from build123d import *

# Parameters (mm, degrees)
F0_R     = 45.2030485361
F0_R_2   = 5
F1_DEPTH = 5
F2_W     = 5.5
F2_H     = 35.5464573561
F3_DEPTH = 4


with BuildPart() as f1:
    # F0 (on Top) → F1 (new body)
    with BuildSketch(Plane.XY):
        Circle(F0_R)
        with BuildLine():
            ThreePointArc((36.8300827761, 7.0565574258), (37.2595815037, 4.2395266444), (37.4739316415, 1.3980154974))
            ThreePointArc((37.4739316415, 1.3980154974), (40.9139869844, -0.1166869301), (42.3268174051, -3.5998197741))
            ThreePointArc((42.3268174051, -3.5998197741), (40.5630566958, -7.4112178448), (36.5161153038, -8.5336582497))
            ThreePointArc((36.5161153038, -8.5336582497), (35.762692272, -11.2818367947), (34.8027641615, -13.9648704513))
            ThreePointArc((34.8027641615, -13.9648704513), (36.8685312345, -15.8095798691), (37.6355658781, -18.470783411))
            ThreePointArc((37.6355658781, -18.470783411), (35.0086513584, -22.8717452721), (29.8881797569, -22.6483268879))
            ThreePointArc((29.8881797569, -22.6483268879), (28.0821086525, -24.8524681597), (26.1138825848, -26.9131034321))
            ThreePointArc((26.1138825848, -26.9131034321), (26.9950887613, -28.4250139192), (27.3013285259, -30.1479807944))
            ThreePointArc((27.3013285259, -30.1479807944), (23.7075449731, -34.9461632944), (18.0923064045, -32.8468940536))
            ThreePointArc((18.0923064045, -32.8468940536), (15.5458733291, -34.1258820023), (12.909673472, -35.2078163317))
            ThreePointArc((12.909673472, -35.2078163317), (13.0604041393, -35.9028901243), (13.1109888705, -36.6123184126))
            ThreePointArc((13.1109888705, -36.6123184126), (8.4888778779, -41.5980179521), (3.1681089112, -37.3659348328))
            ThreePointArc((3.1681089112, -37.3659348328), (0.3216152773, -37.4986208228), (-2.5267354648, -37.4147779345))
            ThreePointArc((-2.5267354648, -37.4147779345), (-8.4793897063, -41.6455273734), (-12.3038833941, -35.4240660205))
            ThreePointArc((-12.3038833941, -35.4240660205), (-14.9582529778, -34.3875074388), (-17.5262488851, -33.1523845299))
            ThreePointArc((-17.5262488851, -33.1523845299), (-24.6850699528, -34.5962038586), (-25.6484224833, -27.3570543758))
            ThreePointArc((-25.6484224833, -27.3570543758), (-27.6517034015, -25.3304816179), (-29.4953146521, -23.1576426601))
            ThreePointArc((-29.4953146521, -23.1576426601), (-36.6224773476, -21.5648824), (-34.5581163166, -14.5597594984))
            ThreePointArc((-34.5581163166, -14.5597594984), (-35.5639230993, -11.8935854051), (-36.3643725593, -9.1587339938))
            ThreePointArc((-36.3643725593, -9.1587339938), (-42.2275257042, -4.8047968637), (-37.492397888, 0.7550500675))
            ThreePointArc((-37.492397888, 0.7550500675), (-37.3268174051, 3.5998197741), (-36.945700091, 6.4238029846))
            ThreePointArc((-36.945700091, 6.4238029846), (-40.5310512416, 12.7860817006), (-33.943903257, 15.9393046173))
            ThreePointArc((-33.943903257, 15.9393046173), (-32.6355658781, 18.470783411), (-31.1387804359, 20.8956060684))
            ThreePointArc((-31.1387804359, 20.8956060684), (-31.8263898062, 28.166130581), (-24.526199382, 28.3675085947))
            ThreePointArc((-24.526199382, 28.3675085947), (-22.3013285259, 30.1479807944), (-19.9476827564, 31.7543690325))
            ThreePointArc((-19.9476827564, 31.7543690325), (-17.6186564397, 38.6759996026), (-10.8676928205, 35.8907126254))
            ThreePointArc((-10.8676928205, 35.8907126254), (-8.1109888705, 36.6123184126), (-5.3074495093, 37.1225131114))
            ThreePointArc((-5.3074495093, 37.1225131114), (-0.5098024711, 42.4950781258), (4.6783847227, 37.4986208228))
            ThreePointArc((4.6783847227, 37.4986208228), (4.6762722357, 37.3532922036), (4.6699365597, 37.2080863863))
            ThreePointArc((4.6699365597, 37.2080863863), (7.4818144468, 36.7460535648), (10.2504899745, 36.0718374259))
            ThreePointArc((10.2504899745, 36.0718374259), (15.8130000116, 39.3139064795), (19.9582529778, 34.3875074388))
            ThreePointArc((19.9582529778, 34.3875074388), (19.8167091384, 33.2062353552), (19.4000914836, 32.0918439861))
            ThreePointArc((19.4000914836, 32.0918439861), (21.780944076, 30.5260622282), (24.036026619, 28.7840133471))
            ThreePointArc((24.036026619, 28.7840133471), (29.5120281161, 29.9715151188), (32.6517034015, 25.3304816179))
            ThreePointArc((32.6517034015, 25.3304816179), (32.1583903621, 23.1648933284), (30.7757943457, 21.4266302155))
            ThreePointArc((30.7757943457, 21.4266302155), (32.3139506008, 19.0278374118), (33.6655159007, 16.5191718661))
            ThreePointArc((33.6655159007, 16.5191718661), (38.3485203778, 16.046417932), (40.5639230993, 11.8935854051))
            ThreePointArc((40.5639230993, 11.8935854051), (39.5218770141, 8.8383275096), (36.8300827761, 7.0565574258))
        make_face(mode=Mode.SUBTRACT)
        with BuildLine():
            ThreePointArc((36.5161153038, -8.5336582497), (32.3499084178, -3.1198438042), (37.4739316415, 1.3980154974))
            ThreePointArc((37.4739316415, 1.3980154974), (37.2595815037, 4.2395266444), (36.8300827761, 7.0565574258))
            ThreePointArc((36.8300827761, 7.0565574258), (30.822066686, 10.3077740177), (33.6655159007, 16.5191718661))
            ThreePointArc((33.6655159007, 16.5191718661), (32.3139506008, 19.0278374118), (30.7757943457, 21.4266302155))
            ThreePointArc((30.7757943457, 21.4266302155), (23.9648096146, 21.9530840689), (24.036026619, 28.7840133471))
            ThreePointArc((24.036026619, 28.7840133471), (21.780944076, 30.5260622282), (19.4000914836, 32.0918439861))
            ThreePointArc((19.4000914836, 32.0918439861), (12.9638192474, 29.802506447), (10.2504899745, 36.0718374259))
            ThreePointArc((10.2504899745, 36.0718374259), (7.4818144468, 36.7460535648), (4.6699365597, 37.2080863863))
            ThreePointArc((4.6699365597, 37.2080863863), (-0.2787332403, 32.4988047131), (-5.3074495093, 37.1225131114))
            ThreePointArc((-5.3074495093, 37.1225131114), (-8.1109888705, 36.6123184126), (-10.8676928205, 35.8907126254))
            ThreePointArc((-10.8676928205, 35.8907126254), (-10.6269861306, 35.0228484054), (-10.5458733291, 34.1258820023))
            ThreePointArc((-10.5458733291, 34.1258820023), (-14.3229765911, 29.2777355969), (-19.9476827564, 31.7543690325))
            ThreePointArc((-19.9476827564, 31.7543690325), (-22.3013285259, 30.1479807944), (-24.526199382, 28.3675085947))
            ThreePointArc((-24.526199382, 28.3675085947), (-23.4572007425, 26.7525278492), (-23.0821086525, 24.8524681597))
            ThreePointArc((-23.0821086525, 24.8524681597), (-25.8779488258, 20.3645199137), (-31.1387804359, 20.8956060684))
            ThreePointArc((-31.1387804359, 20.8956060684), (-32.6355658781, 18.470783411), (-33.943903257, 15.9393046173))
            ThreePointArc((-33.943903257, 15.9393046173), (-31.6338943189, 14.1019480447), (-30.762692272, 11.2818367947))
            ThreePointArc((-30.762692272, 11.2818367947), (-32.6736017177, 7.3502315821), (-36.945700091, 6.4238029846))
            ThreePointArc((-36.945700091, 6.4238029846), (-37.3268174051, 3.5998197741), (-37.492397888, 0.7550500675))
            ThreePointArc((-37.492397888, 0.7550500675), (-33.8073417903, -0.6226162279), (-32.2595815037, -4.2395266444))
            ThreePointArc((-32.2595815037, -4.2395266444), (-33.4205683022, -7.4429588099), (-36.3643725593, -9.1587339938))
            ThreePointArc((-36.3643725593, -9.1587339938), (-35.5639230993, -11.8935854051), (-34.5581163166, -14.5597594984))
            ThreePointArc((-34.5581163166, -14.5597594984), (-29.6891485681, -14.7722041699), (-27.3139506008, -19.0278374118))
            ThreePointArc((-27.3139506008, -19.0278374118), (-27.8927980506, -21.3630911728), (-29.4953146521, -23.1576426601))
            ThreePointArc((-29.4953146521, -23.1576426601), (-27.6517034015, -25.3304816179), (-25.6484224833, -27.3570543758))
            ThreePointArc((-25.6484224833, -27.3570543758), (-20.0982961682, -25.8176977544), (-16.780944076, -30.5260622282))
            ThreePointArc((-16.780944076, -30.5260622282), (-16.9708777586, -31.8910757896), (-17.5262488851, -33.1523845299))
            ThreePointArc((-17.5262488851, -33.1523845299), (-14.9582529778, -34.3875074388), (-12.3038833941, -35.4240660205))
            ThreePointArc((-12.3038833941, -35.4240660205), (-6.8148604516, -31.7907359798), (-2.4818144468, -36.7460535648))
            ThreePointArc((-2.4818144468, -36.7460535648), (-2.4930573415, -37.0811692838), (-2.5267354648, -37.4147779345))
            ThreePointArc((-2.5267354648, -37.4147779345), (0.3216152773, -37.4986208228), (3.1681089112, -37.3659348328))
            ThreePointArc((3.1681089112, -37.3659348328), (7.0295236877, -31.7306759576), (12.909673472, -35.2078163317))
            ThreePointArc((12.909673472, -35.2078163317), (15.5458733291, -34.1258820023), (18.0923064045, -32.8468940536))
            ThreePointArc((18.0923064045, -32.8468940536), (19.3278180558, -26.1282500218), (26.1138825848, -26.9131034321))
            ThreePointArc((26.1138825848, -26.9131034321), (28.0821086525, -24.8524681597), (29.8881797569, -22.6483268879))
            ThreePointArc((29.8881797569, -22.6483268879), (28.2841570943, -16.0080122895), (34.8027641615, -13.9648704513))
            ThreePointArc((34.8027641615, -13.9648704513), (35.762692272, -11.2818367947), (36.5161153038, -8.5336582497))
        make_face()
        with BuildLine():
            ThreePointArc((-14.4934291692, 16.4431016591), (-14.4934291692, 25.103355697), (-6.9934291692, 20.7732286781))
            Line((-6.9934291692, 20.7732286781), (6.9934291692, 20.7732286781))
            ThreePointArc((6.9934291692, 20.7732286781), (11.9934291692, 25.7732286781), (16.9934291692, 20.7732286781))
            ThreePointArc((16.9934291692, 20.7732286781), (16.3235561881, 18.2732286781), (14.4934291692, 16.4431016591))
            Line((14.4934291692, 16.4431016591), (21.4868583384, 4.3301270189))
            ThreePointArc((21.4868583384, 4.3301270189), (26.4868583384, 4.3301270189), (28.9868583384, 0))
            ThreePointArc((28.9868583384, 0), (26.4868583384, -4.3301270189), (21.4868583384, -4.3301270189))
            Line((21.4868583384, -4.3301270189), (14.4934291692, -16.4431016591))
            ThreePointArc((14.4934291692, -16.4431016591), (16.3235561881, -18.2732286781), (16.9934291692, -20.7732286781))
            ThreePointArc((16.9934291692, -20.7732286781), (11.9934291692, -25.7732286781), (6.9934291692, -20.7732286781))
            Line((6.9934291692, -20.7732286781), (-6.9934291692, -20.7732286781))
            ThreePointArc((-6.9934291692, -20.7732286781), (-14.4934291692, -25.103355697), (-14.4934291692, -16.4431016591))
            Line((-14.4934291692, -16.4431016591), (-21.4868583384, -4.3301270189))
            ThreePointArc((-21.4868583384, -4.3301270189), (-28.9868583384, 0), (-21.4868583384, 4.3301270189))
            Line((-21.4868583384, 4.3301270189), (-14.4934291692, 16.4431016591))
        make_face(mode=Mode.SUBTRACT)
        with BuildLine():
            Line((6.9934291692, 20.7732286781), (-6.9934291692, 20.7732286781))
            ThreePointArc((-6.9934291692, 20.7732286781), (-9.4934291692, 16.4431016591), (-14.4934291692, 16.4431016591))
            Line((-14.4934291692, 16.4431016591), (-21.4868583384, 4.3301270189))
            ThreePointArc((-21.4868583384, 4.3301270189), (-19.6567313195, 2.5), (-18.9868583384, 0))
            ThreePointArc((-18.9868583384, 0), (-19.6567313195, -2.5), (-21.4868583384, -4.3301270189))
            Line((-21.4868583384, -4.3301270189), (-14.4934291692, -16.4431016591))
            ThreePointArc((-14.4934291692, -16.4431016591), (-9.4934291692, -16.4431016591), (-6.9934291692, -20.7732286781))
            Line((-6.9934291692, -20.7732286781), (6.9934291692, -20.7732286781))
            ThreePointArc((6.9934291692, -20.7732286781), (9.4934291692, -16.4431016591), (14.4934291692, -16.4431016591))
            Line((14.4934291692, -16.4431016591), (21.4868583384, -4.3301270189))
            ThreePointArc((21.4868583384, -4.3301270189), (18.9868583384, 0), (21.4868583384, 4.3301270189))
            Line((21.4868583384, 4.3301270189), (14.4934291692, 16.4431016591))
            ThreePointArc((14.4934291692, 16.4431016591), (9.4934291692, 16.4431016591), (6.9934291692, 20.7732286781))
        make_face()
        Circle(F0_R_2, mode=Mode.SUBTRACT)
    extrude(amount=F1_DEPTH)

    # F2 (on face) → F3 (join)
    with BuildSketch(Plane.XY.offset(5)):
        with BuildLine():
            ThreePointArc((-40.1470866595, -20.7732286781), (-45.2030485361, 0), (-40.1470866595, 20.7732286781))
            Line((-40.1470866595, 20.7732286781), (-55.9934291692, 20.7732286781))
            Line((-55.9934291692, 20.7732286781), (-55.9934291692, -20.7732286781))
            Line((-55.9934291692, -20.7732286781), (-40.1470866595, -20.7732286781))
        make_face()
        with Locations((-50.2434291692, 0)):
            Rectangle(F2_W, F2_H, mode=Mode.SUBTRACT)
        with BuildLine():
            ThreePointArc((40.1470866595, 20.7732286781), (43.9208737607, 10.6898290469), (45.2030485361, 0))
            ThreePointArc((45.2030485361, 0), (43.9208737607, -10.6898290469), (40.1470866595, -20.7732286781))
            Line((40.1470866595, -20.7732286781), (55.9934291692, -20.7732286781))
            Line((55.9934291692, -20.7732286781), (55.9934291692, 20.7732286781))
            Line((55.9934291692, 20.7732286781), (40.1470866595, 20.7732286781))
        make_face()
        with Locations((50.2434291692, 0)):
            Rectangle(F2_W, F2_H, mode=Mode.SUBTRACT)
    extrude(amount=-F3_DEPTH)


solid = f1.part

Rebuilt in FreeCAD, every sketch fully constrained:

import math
import FreeCAD as App
import Part
import Sketcher

V = App.Vector
Q = App.Units.Quantity

doc = App.newDocument("Part")
body = doc.addObject("PartDesign::Body", "Body")

# Sketch on XY plane
sketch1 = body.newObject("Sketcher::SketchObject", "Sketch")
sketch1.AttachmentSupport = (doc.getObject("XY_Plane"), [""])
sketch1.MapMode = "FlatFace"
sketch1.addGeometry(Part.Circle(V(0, 0, 0), V(0, 0, 1), 45.2), False)
sketch1.addGeometry(Part.ArcOfCircle(Part.Circle(V(-21.78, -30.53, 0), V(0, 0, 1), 5), math.radians(141), math.radians(328)), False)
sketch1.addGeometry(Part.ArcOfCircle(Part.Circle(V(-21.78, -30.53, 0), V(0, 0, 1), 5), math.radians(0), math.radians(141)), False)
sketch1.addGeometry(Part.ArcOfCircle(Part.Circle(V(-21.78, -30.53, 0), V(0, 0, 1), 5), math.radians(-32), math.radians(0)), False)
sketch1.addGeometry(Part.ArcOfCircle(Part.Circle(V(-7.48, -36.75, 0), V(0, 0, 1), 5), math.radians(165), math.radians(352)), False)
sketch1.addGeometry(Part.ArcOfCircle(Part.Circle(V(-7.48, -36.75, 0), V(0, 0, 1), 5), math.radians(0), math.radians(165)), False)
sketch1.addGeometry(Part.ArcOfCircle(Part.Circle(V(-7.48, -36.75, 0), V(0, 0, 1), 5), math.radians(-7.69), math.radians(0)), False)
sketch1.addGeometry(Part.ArcOfCircle(Part.Circle(V(-11.99, -20.77, 0), V(0, 0, 1), 5), math.radians(120), math.radians(360)), False)
sketch1.addGeometry(Part.ArcOfCircle(Part.Circle(V(-11.99, -20.77, 0), V(0, 0, 1), 5), math.radians(0), math.radians(120)), False)
sketch1.addGeometry(Part.ArcOfCircle(Part.Circle(V(-32.31, -19.03, 0), V(0, 0, 1), 5), math.radians(117), math.radians(304)), False)
sketch1.addGeometry(Part.ArcOfCircle(Part.Circle(V(-32.31, -19.03, 0), V(0, 0, 1), 5), math.radians(0), math.radians(117)), False)
sketch1.addGeometry(Part.ArcOfCircle(Part.Circle(V(-32.31, -19.03, 0), V(0, 0, 1), 5), math.radians(-56), math.radians(0)), False)
sketch1.addGeometry(Part.ArcOfCircle(Part.Circle(V(-37.26, -4.24, 0), V(0, 0, 1), 5), math.radians(93), math.radians(280)), False)
sketch1.addGeometry(Part.ArcOfCircle(Part.Circle(V(-37.26, -4.24, 0), V(0, 0, 1), 5), math.radians(0), math.radians(93)), False)
sketch1.addGeometry(Part.ArcOfCircle(Part.Circle(V(-37.26, -4.24, 0), V(0, 0, 1), 5), math.radians(-80), math.radians(0)), False)
sketch1.addGeometry(Part.ArcOfCircle(Part.Circle(V(-23.99, 0, 0), V(0, 0, 1), 5), math.radians(60), math.radians(300)), False)
sketch1.addGeometry(Part.ArcOfCircle(Part.Circle(V(-23.99, 0, 0), V(0, 0, 1), 5), math.radians(0), math.radians(60)), False)
sketch1.addGeometry(Part.ArcOfCircle(Part.Circle(V(-23.99, 0, 0), V(0, 0, 1), 5), math.radians(-60), math.radians(0)), False)
sketch1.addGeometry(Part.Circle(V(0, 0, 0), V(0, 0, 1), 5), False)
sketch1.addGeometry(Part.ArcOfCircle(Part.Circle(V(8.11, -36.61, 0), V(0, 0, 1), 5), math.radians(-171), math.radians(0)), False)
sketch1.addGeometry(Part.ArcOfCircle(Part.Circle(V(8.11, -36.61, 0), V(0, 0, 1), 5), math.radians(16), math.radians(189)), False)
sketch1.addGeometry(Part.ArcOfCircle(Part.Circle(V(8.11, -36.61, 0), V(0, 0, 1), 5), math.radians(0), math.radians(16.31)), False)
sketch1.addGeometry(Part.ArcOfCircle(Part.Circle(V(11.99, -20.77, 0), V(0, 0, 1), 5), math.radians(180), math.radians(360)), False)
sketch1.addGeometry(Part.ArcOfCircle(Part.Circle(V(11.99, -20.77, 0), V(0, 0, 1), 5), math.radians(60), math.radians(180)), False)
sketch1.addGeometry(Part.ArcOfCircle(Part.Circle(V(11.99, -20.77, 0), V(0, 0, 1), 5), math.radians(0), math.radians(60)), False)
sketch1.addGeometry(Part.ArcOfCircle(Part.Circle(V(22.3, -30.15, 0), V(0, 0, 1), 5), math.radians(-147), math.radians(0)), False)
sketch1.addGeometry(Part.ArcOfCircle(Part.Circle(V(22.3, -30.15, 0), V(0, 0, 1), 5), math.radians(40), math.radians(213)), False)
sketch1.addGeometry(Part.ArcOfCircle(Part.Circle(V(22.3, -30.15, 0), V(0, 0, 1), 5), math.radians(0), math.radians(40)), False)
sketch1.addGeometry(Part.ArcOfCircle(Part.Circle(V(32.64, -18.47, 0), V(0, 0, 1), 5), math.radians(-123), math.radians(0)), False)
sketch1.addGeometry(Part.ArcOfCircle(Part.Circle(V(32.64, -18.47, 0), V(0, 0, 1), 5), math.radians(64), math.radians(237)), False)
sketch1.addGeometry(Part.ArcOfCircle(Part.Circle(V(32.64, -18.47, 0), V(0, 0, 1), 5), math.radians(0), math.radians(64)), False)
sketch1.addGeometry(Part.ArcOfCircle(Part.Circle(V(23.99, 0, 0), V(0, 0, 1), 5), math.radians(-120), math.radians(0)), False)
sketch1.addGeometry(Part.ArcOfCircle(Part.Circle(V(23.99, 0, 0), V(0, 0, 1), 5), math.radians(120), math.radians(240)), False)
sketch1.addGeometry(Part.ArcOfCircle(Part.Circle(V(23.99, 0, 0), V(0, 0, 1), 5), math.radians(0), math.radians(120)), False)
sketch1.addGeometry(Part.ArcOfCircle(Part.Circle(V(37.33, -3.6, 0), V(0, 0, 1), 5), math.radians(-99), math.radians(0)), False)
sketch1.addGeometry(Part.ArcOfCircle(Part.Circle(V(37.33, -3.6, 0), V(0, 0, 1), 5), math.radians(88), math.radians(261)), False)
sketch1.addGeometry(Part.ArcOfCircle(Part.Circle(V(37.33, -3.6, 0), V(0, 0, 1), 5), math.radians(0), math.radians(88)), False)
sketch1.addGeometry(Part.ArcOfCircle(Part.Circle(V(-35.76, 11.28, 0), V(0, 0, 1), 5), math.radians(69), math.radians(256)), False)
sketch1.addGeometry(Part.ArcOfCircle(Part.Circle(V(-35.76, 11.28, 0), V(0, 0, 1), 5), math.radians(0), math.radians(69)), False)
sketch1.addGeometry(Part.ArcOfCircle(Part.Circle(V(-35.76, 11.28, 0), V(0, 0, 1), 5), math.radians(-104), math.radians(0)), False)
sketch1.addGeometry(Part.ArcOfCircle(Part.Circle(V(-11.99, 20.77, 0), V(0, 0, 1), 5), math.radians(0), math.radians(240)), False)
sketch1.addGeometry(Part.ArcOfCircle(Part.Circle(V(-11.99, 20.77, 0), V(0, 0, 1), 5), math.radians(-120), math.radians(0)), False)
sketch1.addGeometry(Part.ArcOfCircle(Part.Circle(V(-28.08, 24.85, 0), V(0, 0, 1), 5), math.radians(45), math.radians(232)), False)
sketch1.addGeometry(Part.ArcOfCircle(Part.Circle(V(-28.08, 24.85, 0), V(0, 0, 1), 5), math.radians(0), math.radians(45)), False)
sketch1.addGeometry(Part.ArcOfCircle(Part.Circle(V(-28.08, 24.85, 0), V(0, 0, 1), 5), math.radians(-128), math.radians(0)), False)
sketch1.addGeometry(Part.ArcOfCircle(Part.Circle(V(-15.55, 34.13, 0), V(0, 0, 1), 5), math.radians(21), math.radians(208)), False)
sketch1.addGeometry(Part.ArcOfCircle(Part.Circle(V(-15.55, 34.13, 0), V(0, 0, 1), 5), math.radians(0), math.radians(21)), False)
sketch1.addGeometry(Part.ArcOfCircle(Part.Circle(V(-15.55, 34.13, 0), V(0, 0, 1), 5), math.radians(-152), math.radians(0)), False)
sketch1.addGeometry(Part.ArcOfCircle(Part.Circle(V(-0.32, 37.5, 0), V(0, 0, 1), 5), math.radians(-3.33), math.radians(0)), False)
sketch1.addGeometry(Part.ArcOfCircle(Part.Circle(V(-0.32, 37.5, 0), V(0, 0, 1), 5), math.radians(-176), math.radians(-3)), False)
sketch1.addGeometry(Part.ArcOfCircle(Part.Circle(V(-0.32, 37.5, 0), V(0, 0, 1), 5), math.radians(0), math.radians(184)), False)
sketch1.addGeometry(Part.ArcOfCircle(Part.Circle(V(11.99, 20.77, 0), V(0, 0, 1), 5), math.radians(-60), math.radians(0)), False)
sketch1.addGeometry(Part.ArcOfCircle(Part.Circle(V(11.99, 20.77, 0), V(0, 0, 1), 5), math.radians(180), math.radians(300)), False)
sketch1.addGeometry(Part.ArcOfCircle(Part.Circle(V(11.99, 20.77, 0), V(0, 0, 1), 5), math.radians(0), math.radians(180)), False)
sketch1.addGeometry(Part.ArcOfCircle(Part.Circle(V(35.56, 11.89, 0), V(0, 0, 1), 5), math.radians(-75), math.radians(0)), False)
sketch1.addGeometry(Part.ArcOfCircle(Part.Circle(V(35.56, 11.89, 0), V(0, 0, 1), 5), math.radians(112), math.radians(285)), False)
sketch1.addGeometry(Part.ArcOfCircle(Part.Circle(V(35.56, 11.89, 0), V(0, 0, 1), 5), math.radians(0), math.radians(112)), False)
sketch1.addGeometry(Part.ArcOfCircle(Part.Circle(V(14.96, 34.39, 0), V(0, 0, 1), 5), math.radians(-27), math.radians(0)), False)
sketch1.addGeometry(Part.ArcOfCircle(Part.Circle(V(14.96, 34.39, 0), V(0, 0, 1), 5), math.radians(160), math.radians(333)), False)
sketch1.addGeometry(Part.ArcOfCircle(Part.Circle(V(14.96, 34.39, 0), V(0, 0, 1), 5), math.radians(0), math.radians(160)), False)
sketch1.addGeometry(Part.ArcOfCircle(Part.Circle(V(27.65, 25.33, 0), V(0, 0, 1), 5), math.radians(-51), math.radians(0)), False)
sketch1.addGeometry(Part.ArcOfCircle(Part.Circle(V(27.65, 25.33, 0), V(0, 0, 1), 5), math.radians(136), math.radians(309)), False)
sketch1.addGeometry(Part.ArcOfCircle(Part.Circle(V(27.65, 25.33, 0), V(0, 0, 1), 5), math.radians(0), math.radians(136)), False)
sketch1.addConstraint(Sketcher.Constraint("Tangent", 1, 1, 2, 2))
sketch1.addConstraint(Sketcher.Constraint("Tangent", 2, 1, 3, 2))
sketch1.addConstraint(Sketcher.Constraint("Tangent", 3, 1, 1, 2))
sketch1.addConstraint(Sketcher.Constraint("Tangent", 4, 1, 5, 2))
sketch1.addConstraint(Sketcher.Constraint("Tangent", 5, 1, 6, 2))
sketch1.addConstraint(Sketcher.Constraint("Tangent", 6, 1, 4, 2))
sketch1.addConstraint(Sketcher.Constraint("Tangent", 7, 1, 8, 2))
sketch1.addConstraint(Sketcher.Constraint("Coincident", 8, 1, 7, 2))
sketch1.addConstraint(Sketcher.Constraint("Tangent", 9, 1, 10, 2))
sketch1.addConstraint(Sketcher.Constraint("Tangent", 10, 1, 11, 2))
sketch1.addConstraint(Sketcher.Constraint("Tangent", 11, 1, 9, 2))
sketch1.addConstraint(Sketcher.Constraint("Tangent", 12, 1, 13, 2))
sketch1.addConstraint(Sketcher.Constraint("Tangent", 13, 1, 14, 2))
sketch1.addConstraint(Sketcher.Constraint("Tangent", 14, 1, 12, 2))
sketch1.addConstraint(Sketcher.Constraint("Tangent", 15, 1, 16, 2))
sketch1.addConstraint(Sketcher.Constraint("Tangent", 16, 1, 17, 2))
sketch1.addConstraint(Sketcher.Constraint("Tangent", 17, 1, 15, 2))
sketch1.addConstraint(Sketcher.Constraint("Tangent", 19, 1, 20, 2))
sketch1.addConstraint(Sketcher.Constraint("Tangent", 20, 1, 21, 2))
sketch1.addConstraint(Sketcher.Constraint("Tangent", 21, 1, 19, 2))
sketch1.addConstraint(Sketcher.Constraint("Tangent", 22, 1, 23, 2))
sketch1.addConstraint(Sketcher.Constraint("Tangent", 23, 1, 24, 2))
sketch1.addConstraint(Sketcher.Constraint("Tangent", 24, 1, 22, 2))
sketch1.addConstraint(Sketcher.Constraint("Tangent", 25, 1, 26, 2))
sketch1.addConstraint(Sketcher.Constraint("Tangent", 26, 1, 27, 2))
sketch1.addConstraint(Sketcher.Constraint("Tangent", 27, 1, 25, 2))
sketch1.addConstraint(Sketcher.Constraint("Tangent", 28, 1, 29, 2))
sketch1.addConstraint(Sketcher.Constraint("Tangent", 29, 1, 30, 2))
sketch1.addConstraint(Sketcher.Constraint("Tangent", 30, 1, 28, 2))
sketch1.addConstraint(Sketcher.Constraint("Tangent", 31, 1, 32, 2))
sketch1.addConstraint(Sketcher.Constraint("Tangent", 32, 1, 33, 2))
sketch1.addConstraint(Sketcher.Constraint("Tangent", 33, 1, 31, 2))
sketch1.addConstraint(Sketcher.Constraint("Tangent", 34, 1, 35, 2))
sketch1.addConstraint(Sketcher.Constraint("Tangent", 35, 1, 36, 2))
sketch1.addConstraint(Sketcher.Constraint("Tangent", 36, 1, 34, 2))
sketch1.addConstraint(Sketcher.Constraint("Tangent", 37, 1, 38, 2))
sketch1.addConstraint(Sketcher.Constraint("Tangent", 38, 1, 39, 2))
sketch1.addConstraint(Sketcher.Constraint("Tangent", 39, 1, 37, 2))
sketch1.addConstraint(Sketcher.Constraint("Tangent", 40, 1, 41, 2))
sketch1.addConstraint(Sketcher.Constraint("Coincident", 41, 1, 40, 2))
sketch1.addConstraint(Sketcher.Constraint("Tangent", 42, 1, 43, 2))
sketch1.addConstraint(Sketcher.Constraint("Tangent", 43, 1, 44, 2))
sketch1.addConstraint(Sketcher.Constraint("Tangent", 44, 1, 42, 2))
sketch1.addConstraint(Sketcher.Constraint("Tangent", 45, 1, 46, 2))
sketch1.addConstraint(Sketcher.Constraint("Tangent", 46, 1, 47, 2))
sketch1.addConstraint(Sketcher.Constraint("Tangent", 47, 1, 45, 2))
sketch1.addConstraint(Sketcher.Constraint("Tangent", 48, 1, 49, 2))
sketch1.addConstraint(Sketcher.Constraint("Tangent", 49, 1, 50, 2))
sketch1.addConstraint(Sketcher.Constraint("Tangent", 50, 1, 48, 2))
sketch1.addConstraint(Sketcher.Constraint("Tangent", 51, 1, 52, 2))
sketch1.addConstraint(Sketcher.Constraint("Tangent", 52, 1, 53, 2))
sketch1.addConstraint(Sketcher.Constraint("Tangent", 53, 1, 51, 2))
sketch1.addConstraint(Sketcher.Constraint("Tangent", 54, 1, 55, 2))
sketch1.addConstraint(Sketcher.Constraint("Tangent", 55, 1, 56, 2))
sketch1.addConstraint(Sketcher.Constraint("Tangent", 56, 1, 54, 2))
sketch1.addConstraint(Sketcher.Constraint("Tangent", 57, 1, 58, 2))
sketch1.addConstraint(Sketcher.Constraint("Tangent", 58, 1, 59, 2))
sketch1.addConstraint(Sketcher.Constraint("Tangent", 59, 1, 57, 2))
sketch1.addConstraint(Sketcher.Constraint("Tangent", 60, 1, 61, 2))
sketch1.addConstraint(Sketcher.Constraint("Tangent", 61, 1, 62, 2))
sketch1.addConstraint(Sketcher.Constraint("Tangent", 62, 1, 60, 2))
sketch1.addConstraint(Sketcher.Constraint("Coincident", 0, 3, -1, 1))
sketch1.addConstraint(Sketcher.Constraint("Coincident", 18, 3, -1, 1))
sketch1.addConstraint(Sketcher.Constraint("Equal", 3, 4))
sketch1.addConstraint(Sketcher.Constraint("Equal", 6, 7))
sketch1.addConstraint(Sketcher.Constraint("Equal", 8, 9))
sketch1.addConstraint(Sketcher.Constraint("Equal", 11, 12))
sketch1.addConstraint(Sketcher.Constraint("Equal", 14, 15))
sketch1.addConstraint(Sketcher.Constraint("Equal", 17, 18))
sketch1.addConstraint(Sketcher.Constraint("Equal", 18, 19))
sketch1.addConstraint(Sketcher.Constraint("Equal", 21, 22))
sketch1.addConstraint(Sketcher.Constraint("Equal", 24, 25))
sketch1.addConstraint(Sketcher.Constraint("Equal", 27, 28))
sketch1.addConstraint(Sketcher.Constraint("Equal", 30, 31))
sketch1.addConstraint(Sketcher.Constraint("Equal", 33, 34))
sketch1.addConstraint(Sketcher.Constraint("Equal", 36, 37))
sketch1.addConstraint(Sketcher.Constraint("Equal", 39, 40))
sketch1.addConstraint(Sketcher.Constraint("Equal", 41, 42))
sketch1.addConstraint(Sketcher.Constraint("Equal", 44, 45))
sketch1.addConstraint(Sketcher.Constraint("Equal", 47, 48))
sketch1.addConstraint(Sketcher.Constraint("Equal", 50, 51))
sketch1.addConstraint(Sketcher.Constraint("Equal", 53, 54))
sketch1.addConstraint(Sketcher.Constraint("Equal", 56, 57))
sketch1.addConstraint(Sketcher.Constraint("Equal", 59, 60))
sketch1.addConstraint(Sketcher.Constraint("Symmetric", 15, 3, 31, 3, -1, 1))
sketch1.addConstraint(Sketcher.Constraint("Symmetric", 22, 3, 40, 3, -1, 1))
sketch1.addConstraint(Sketcher.Constraint("Symmetric", 7, 3, 51, 3, -1, 1))
sketch1.addConstraint(Sketcher.Constraint("Symmetric", 7, 3, 22, 3, -2))
sketch1.addConstraint(Sketcher.Constraint("Symmetric", 17, 1, 31, 1, -2))
sketch1.addConstraint(Sketcher.Constraint("PointOnObject", 16, 1, -1))
sketch1.addConstraint(Sketcher.Constraint("PointOnObject", 33, 1, -1))
sketch1.addConstraint(Sketcher.Constraint("Horizontal", 3, 3, 2, 1))
sketch1.addConstraint(Sketcher.Constraint("Horizontal", 6, 3, 5, 1))
sketch1.addConstraint(Sketcher.Constraint("Horizontal", 24, 3, 8, 1))
sketch1.addConstraint(Sketcher.Constraint("Horizontal", 11, 3, 10, 1))
sketch1.addConstraint(Sketcher.Constraint("Horizontal", 14, 3, 13, 1))
sketch1.addConstraint(Sketcher.Constraint("Horizontal", 20, 3, 21, 1))
sketch1.addConstraint(Sketcher.Constraint("Horizontal", 8, 1, 22, 1))
sketch1.addConstraint(Sketcher.Constraint("Horizontal", 7, 1, 23, 1))
sketch1.addConstraint(Sketcher.Constraint("Horizontal", 22, 1, 24, 1))
sketch1.addConstraint(Sketcher.Constraint("Horizontal", 26, 3, 27, 1))
sketch1.addConstraint(Sketcher.Constraint("Horizontal", 29, 3, 30, 1))
sketch1.addConstraint(Sketcher.Constraint("Horizontal", 15, 1, 32, 1))
sketch1.addConstraint(Sketcher.Constraint("Horizontal", 35, 3, 36, 1))
sketch1.addConstraint(Sketcher.Constraint("Horizontal", 39, 3, 38, 1))
sketch1.addConstraint(Sketcher.Constraint("Horizontal", 53, 3, 40, 1))
sketch1.addConstraint(Sketcher.Constraint("Horizontal", 44, 3, 43, 1))
sketch1.addConstraint(Sketcher.Constraint("Horizontal", 47, 3, 46, 1))
sketch1.addConstraint(Sketcher.Constraint("Horizontal", 49, 3, 50, 1))
sketch1.addConstraint(Sketcher.Constraint("Horizontal", 41, 1, 51, 1))
sketch1.addConstraint(Sketcher.Constraint("Horizontal", 40, 1, 52, 1))
sketch1.addConstraint(Sketcher.Constraint("Horizontal", 52, 1, 53, 1))
sketch1.addConstraint(Sketcher.Constraint("Horizontal", 55, 3, 56, 1))
sketch1.addConstraint(Sketcher.Constraint("Horizontal", 58, 3, 59, 1))
sketch1.addConstraint(Sketcher.Constraint("Horizontal", 61, 3, 62, 1))
sketch1.addConstraint(Sketcher.Constraint("Vertical", 15, 1, 17, 1))
sketch1.addConstraint(Sketcher.Constraint("Vertical", 7, 1, 41, 1))
sketch1.addConstraint(Sketcher.Constraint("Diameter", 18, Q("10 mm")))
sketch1.addConstraint(Sketcher.Constraint("Diameter", 0, Q("90.406097 mm")))
sketch1.addConstraint(Sketcher.Constraint("DistanceY", 7, 1, -1, 1, Q("16.443102 mm")))
sketch1.addConstraint(Sketcher.Constraint("DistanceX", 39, 1, -1, 1, Q("36.9457 mm")))
sketch1.addConstraint(Sketcher.Constraint("DistanceX", 42, 1, -1, 1, Q("24.526199 mm")))
sketch1.addConstraint(Sketcher.Constraint("DistanceX", 7, 3, -1, 1, Q("11.993429 mm")))
sketch1.addConstraint(Sketcher.Constraint("DistanceY", 7, 3, -1, 1, Q("20.773229 mm")))
sketch1.addConstraint(Sketcher.Constraint("DistanceX", 9, 3, -1, 1, Q("32.313951 mm")))
sketch1.addConstraint(Sketcher.Constraint("DistanceX", 12, 3, -1, 1, Q("37.259582 mm")))
sketch1.addConstraint(Sketcher.Constraint("DistanceX", 15, 3, -1, 1, Q("23.986858 mm")))
sketch1.addConstraint(Sketcher.Constraint("DistanceX", -1, 1, 19, 3, Q("8.110989 mm")))
sketch1.addConstraint(Sketcher.Constraint("DistanceY", 19, 3, -1, 1, Q("36.612318 mm")))
sketch1.addConstraint(Sketcher.Constraint("DistanceX", -1, 1, 25, 3, Q("22.301329 mm")))
sketch1.addConstraint(Sketcher.Constraint("DistanceY", 25, 3, -1, 1, Q("30.147981 mm")))
sketch1.addConstraint(Sketcher.Constraint("DistanceY", 34, 3, -1, 1, Q("3.59982 mm")))
sketch1.addConstraint(Sketcher.Constraint("DistanceX", 42, 3, -1, 1, Q("28.082109 mm")))
sketch1.addConstraint(Sketcher.Constraint("DistanceY", -1, 1, 42, 3, Q("24.852468 mm")))
sketch1.addConstraint(Sketcher.Constraint("DistanceY", -1, 1, 48, 3, Q("37.498621 mm")))
sketch1.addConstraint(Sketcher.Constraint("DistanceY", -1, 1, 60, 3, Q("25.330482 mm")))
sketch1.addConstraint(Sketcher.Constraint("DistanceX", 3, 1, -1, 1, Q("17.526249 mm")))
sketch1.addConstraint(Sketcher.Constraint("DistanceY", 9, 1, -1, 1, Q("14.559759 mm")))
sketch1.addConstraint(Sketcher.Constraint("DistanceY", -1, 1, 12, 1, Q("0.75505 mm")))
sketch1.addConstraint(Sketcher.Constraint("DistanceX", 15, 1, -1, 1, Q("21.486858 mm")))
sketch1.addConstraint(Sketcher.Constraint("DistanceX", -1, 1, 19, 1, Q("3.168109 mm")))
sketch1.addConstraint(Sketcher.Constraint("DistanceX", -1, 1, 28, 1, Q("29.88818 mm")))
sketch1.addConstraint(Sketcher.Constraint("DistanceY", 29, 1, -1, 1, Q("13.96487 mm")))
sketch1.addConstraint(Sketcher.Constraint("DistanceY", 34, 1, -1, 1, Q("8.533658 mm")))
sketch1.addConstraint(Sketcher.Constraint("DistanceX", -1, 1, 35, 1, Q("37.473932 mm")))
sketch1.addConstraint(Sketcher.Constraint("DistanceX", 44, 1, -1, 1, Q("31.13878 mm")))
sketch1.addConstraint(Sketcher.Constraint("DistanceY", -1, 1, 47, 1, Q("31.754369 mm")))
sketch1.addConstraint(Sketcher.Constraint("DistanceX", 49, 1, -1, 1, Q("5.30745 mm")))
sketch1.addConstraint(Sketcher.Constraint("DistanceY", -1, 1, 55, 1, Q("16.519172 mm")))
sketch1.addConstraint(Sketcher.Constraint("DistanceX", -1, 1, 57, 1, Q("19.400091 mm")))
sketch1.addConstraint(Sketcher.Constraint("DistanceX", -1, 1, 58, 1, Q("10.25049 mm")))
sketch1.addConstraint(Sketcher.Constraint("DistanceY", -1, 1, 60, 1, Q("21.42663 mm")))
sketch1.addConstraint(Sketcher.Constraint("DistanceX", 1, 3, -1, 1, Q("21.780944 mm")))
sketch1.addConstraint(Sketcher.Constraint("DistanceY", 1, 3, -1, 1, Q("30.526062 mm")))
sketch1.addConstraint(Sketcher.Constraint("DistanceX", 4, 3, -1, 1, Q("7.481814 mm")))
sketch1.addConstraint(Sketcher.Constraint("DistanceY", 4, 3, -1, 1, Q("36.746054 mm")))
sketch1.addConstraint(Sketcher.Constraint("DistanceY", 9, 3, -1, 1, Q("19.027837 mm")))
sketch1.addConstraint(Sketcher.Constraint("DistanceY", 12, 3, -1, 1, Q("4.239527 mm")))
sketch1.addConstraint(Sketcher.Constraint("DistanceX", -1, 1, 28, 3, Q("32.635566 mm")))
sketch1.addConstraint(Sketcher.Constraint("DistanceY", 28, 3, -1, 1, Q("18.470783 mm")))
sketch1.addConstraint(Sketcher.Constraint("DistanceX", -1, 1, 34, 3, Q("37.326817 mm")))
sketch1.addConstraint(Sketcher.Constraint("DistanceX", 37, 3, -1, 1, Q("35.762692 mm")))
sketch1.addConstraint(Sketcher.Constraint("DistanceY", -1, 1, 37, 3, Q("11.281837 mm")))
sketch1.addConstraint(Sketcher.Constraint("DistanceX", 45, 3, -1, 1, Q("15.545873 mm")))
sketch1.addConstraint(Sketcher.Constraint("DistanceY", -1, 1, 45, 3, Q("34.125882 mm")))
sketch1.addConstraint(Sketcher.Constraint("DistanceX", 48, 3, -1, 1, Q("0.321615 mm")))
sketch1.addConstraint(Sketcher.Constraint("DistanceX", -1, 1, 54, 3, Q("35.563923 mm")))
sketch1.addConstraint(Sketcher.Constraint("DistanceY", -1, 1, 54, 3, Q("11.893585 mm")))
sketch1.addConstraint(Sketcher.Constraint("DistanceX", -1, 1, 57, 3, Q("14.958253 mm")))
sketch1.addConstraint(Sketcher.Constraint("DistanceY", -1, 1, 57, 3, Q("34.387507 mm")))
sketch1.addConstraint(Sketcher.Constraint("DistanceX", -1, 1, 60, 3, Q("27.651703 mm")))
sketch1.addConstraint(Sketcher.Constraint("DistanceX", 1, 1, -1, 1, Q("25.648422 mm")))
sketch1.addConstraint(Sketcher.Constraint("DistanceX", 4, 1, -1, 1, Q("12.303883 mm")))
sketch1.addConstraint(Sketcher.Constraint("DistanceX", 6, 1, -1, 1, Q("2.526735 mm")))
sketch1.addConstraint(Sketcher.Constraint("DistanceX", 11, 1, -1, 1, Q("29.495315 mm")))
sketch1.addConstraint(Sketcher.Constraint("DistanceX", 14, 1, -1, 1, Q("36.364373 mm")))
sketch1.addConstraint(Sketcher.Constraint("DistanceX", -1, 1, 20, 1, Q("12.909673 mm")))
sketch1.addConstraint(Sketcher.Constraint("DistanceX", -1, 1, 25, 1, Q("18.092306 mm")))
sketch1.addConstraint(Sketcher.Constraint("DistanceX", -1, 1, 26, 1, Q("26.113883 mm")))
sketch1.addConstraint(Sketcher.Constraint("DistanceX", 37, 1, -1, 1, Q("33.943903 mm")))
sketch1.addConstraint(Sketcher.Constraint("DistanceX", 45, 1, -1, 1, Q("10.867693 mm")))
sketch1.addConstraint(Sketcher.Constraint("DistanceX", -1, 1, 48, 1, Q("4.669937 mm")))
sketch1.addConstraint(Sketcher.Constraint("DistanceX", -1, 1, 54, 1, Q("36.830083 mm")))
sketch1.addConstraint(Sketcher.Constraint("DistanceX", -1, 1, 61, 1, Q("24.036027 mm")))
pad1 = body.newObject("PartDesign::Pad", "Pad")
pad1.Profile = sketch1
pad1.Length = 5

# Sketch on XY plane
sketch2 = body.newObject("Sketcher::SketchObject", "Sketch001")
sketch2.AttachmentSupport = (doc.getObject("XY_Plane"), [""])
sketch2.MapMode = "FlatFace"
sketch2.AttachmentOffset = App.Placement(V(0, 0, 5), App.Rotation())
sketch2.addGeometry(Part.ArcOfCircle(Part.Circle(V(0, 0, 0), V(0, 0, 1), 45), math.radians(153), math.radians(207)), False)
sketch2.addGeometry(Part.LineSegment(V(-40, 21, 0), V(-56, 21, 0)), False)
sketch2.addGeometry(Part.LineSegment(V(-56, 21, 0), V(-56, -21, 0)), False)
sketch2.addGeometry(Part.LineSegment(V(-56, -21, 0), V(-40, -21, 0)), False)
sketch2.addGeometry(Part.LineSegment(V(-47, -18, 0), V(-53, -18, 0)), False)
sketch2.addGeometry(Part.LineSegment(V(-53, -18, 0), V(-53, 18, 0)), False)
sketch2.addGeometry(Part.LineSegment(V(-53, 18, 0), V(-47, 18, 0)), False)
sketch2.addGeometry(Part.LineSegment(V(-47, 18, 0), V(-47, -18, 0)), False)
sketch2.addGeometry(Part.ArcOfCircle(Part.Circle(V(0, 0, 0), V(0, 0, 1), 45), math.radians(0), math.radians(27)), False)
sketch2.addGeometry(Part.ArcOfCircle(Part.Circle(V(0, 0, 0), V(0, 0, 1), 45), math.radians(-27), math.radians(0)), False)
sketch2.addGeometry(Part.LineSegment(V(40, -21, 0), V(56, -21, 0)), False)
sketch2.addGeometry(Part.LineSegment(V(56, -21, 0), V(56, 21, 0)), False)
sketch2.addGeometry(Part.LineSegment(V(56, 21, 0), V(40, 21, 0)), False)
sketch2.addGeometry(Part.LineSegment(V(53, -18, 0), V(47, -18, 0)), False)
sketch2.addGeometry(Part.LineSegment(V(47, -18, 0), V(47, 18, 0)), False)
sketch2.addGeometry(Part.LineSegment(V(47, 18, 0), V(53, 18, 0)), False)
sketch2.addGeometry(Part.LineSegment(V(53, 18, 0), V(53, -18, 0)), False)
sketch2.addConstraint(Sketcher.Constraint("Coincident", 0, 1, 1, 1))
sketch2.addConstraint(Sketcher.Constraint("Coincident", 1, 2, 2, 1))
sketch2.addConstraint(Sketcher.Constraint("Coincident", 2, 2, 3, 1))
sketch2.addConstraint(Sketcher.Constraint("Coincident", 3, 2, 0, 2))
sketch2.addConstraint(Sketcher.Constraint("Coincident", 4, 2, 5, 1))
sketch2.addConstraint(Sketcher.Constraint("Coincident", 5, 2, 6, 1))
sketch2.addConstraint(Sketcher.Constraint("Coincident", 6, 2, 7, 1))
sketch2.addConstraint(Sketcher.Constraint("Coincident", 7, 2, 4, 1))
sketch2.addConstraint(Sketcher.Constraint("Tangent", 8, 1, 9, 2))
sketch2.addConstraint(Sketcher.Constraint("Coincident", 9, 1, 10, 1))
sketch2.addConstraint(Sketcher.Constraint("Coincident", 10, 2, 11, 1))
sketch2.addConstraint(Sketcher.Constraint("Coincident", 11, 2, 12, 1))
sketch2.addConstraint(Sketcher.Constraint("Coincident", 12, 2, 8, 2))
sketch2.addConstraint(Sketcher.Constraint("Coincident", 13, 2, 14, 1))
sketch2.addConstraint(Sketcher.Constraint("Coincident", 14, 2, 15, 1))
sketch2.addConstraint(Sketcher.Constraint("Coincident", 15, 2, 16, 1))
sketch2.addConstraint(Sketcher.Constraint("Coincident", 16, 2, 13, 1))
sketch2.addConstraint(Sketcher.Constraint("Horizontal", 1))
sketch2.addConstraint(Sketcher.Constraint("Vertical", 2))
sketch2.addConstraint(Sketcher.Constraint("Horizontal", 3))
sketch2.addConstraint(Sketcher.Constraint("Horizontal", 4))
sketch2.addConstraint(Sketcher.Constraint("Vertical", 5))
sketch2.addConstraint(Sketcher.Constraint("Horizontal", 6))
sketch2.addConstraint(Sketcher.Constraint("Vertical", 7))
sketch2.addConstraint(Sketcher.Constraint("Horizontal", 10))
sketch2.addConstraint(Sketcher.Constraint("Vertical", 11))
sketch2.addConstraint(Sketcher.Constraint("Horizontal", 12))
sketch2.addConstraint(Sketcher.Constraint("Horizontal", 13))
sketch2.addConstraint(Sketcher.Constraint("Vertical", 14))
sketch2.addConstraint(Sketcher.Constraint("Horizontal", 15))
sketch2.addConstraint(Sketcher.Constraint("Vertical", 16))
sketch2.addConstraint(Sketcher.Constraint("Coincident", 0, 3, -1, 1))
sketch2.addConstraint(Sketcher.Constraint("Coincident", 8, 3, -1, 1))
sketch2.addConstraint(Sketcher.Constraint("Equal", 0, 8))
sketch2.addConstraint(Sketcher.Constraint("Equal", 8, 9))
sketch2.addConstraint(Sketcher.Constraint("Symmetric", 1, 2, 10, 2, -1, 1))
sketch2.addConstraint(Sketcher.Constraint("Symmetric", 6, 2, 13, 2, -1, 1))
sketch2.addConstraint(Sketcher.Constraint("Symmetric", 4, 2, 15, 2, -1, 1))
sketch2.addConstraint(Sketcher.Constraint("PointOnObject", 8, 1, -1))
sketch2.addConstraint(Sketcher.Constraint("Horizontal", 3, 2, 9, 1))
sketch2.addConstraint(Sketcher.Constraint("Horizontal", 1, 2, 11, 2))
sketch2.addConstraint(Sketcher.Constraint("Horizontal", 7, 2, 13, 2))
sketch2.addConstraint(Sketcher.Constraint("DistanceX", 4, 2, 4, 1, Q("5.5 mm")))
sketch2.addConstraint(Sketcher.Constraint("DistanceX", 2, 2, 4, 2, Q("3 mm")))
sketch2.addConstraint(Sketcher.Constraint("DistanceY", 2, 2, 4, 2, Q("3 mm")))
sketch2.addConstraint(Sketcher.Constraint("Radius", 0, Q("45.203049 mm")))
sketch2.addConstraint(Sketcher.Constraint("DistanceX", 1, 2, 1, 1, Q("15.846343 mm")))
sketch2.addConstraint(Sketcher.Constraint("DistanceY", 2, 2, 2, 1, Q("41.546457 mm")))
pad2 = body.newObject("PartDesign::Pad", "Pad001")
pad2.Profile = sketch2
pad2.Length = 4
pad2.Reversed = True

doc.recompute()
